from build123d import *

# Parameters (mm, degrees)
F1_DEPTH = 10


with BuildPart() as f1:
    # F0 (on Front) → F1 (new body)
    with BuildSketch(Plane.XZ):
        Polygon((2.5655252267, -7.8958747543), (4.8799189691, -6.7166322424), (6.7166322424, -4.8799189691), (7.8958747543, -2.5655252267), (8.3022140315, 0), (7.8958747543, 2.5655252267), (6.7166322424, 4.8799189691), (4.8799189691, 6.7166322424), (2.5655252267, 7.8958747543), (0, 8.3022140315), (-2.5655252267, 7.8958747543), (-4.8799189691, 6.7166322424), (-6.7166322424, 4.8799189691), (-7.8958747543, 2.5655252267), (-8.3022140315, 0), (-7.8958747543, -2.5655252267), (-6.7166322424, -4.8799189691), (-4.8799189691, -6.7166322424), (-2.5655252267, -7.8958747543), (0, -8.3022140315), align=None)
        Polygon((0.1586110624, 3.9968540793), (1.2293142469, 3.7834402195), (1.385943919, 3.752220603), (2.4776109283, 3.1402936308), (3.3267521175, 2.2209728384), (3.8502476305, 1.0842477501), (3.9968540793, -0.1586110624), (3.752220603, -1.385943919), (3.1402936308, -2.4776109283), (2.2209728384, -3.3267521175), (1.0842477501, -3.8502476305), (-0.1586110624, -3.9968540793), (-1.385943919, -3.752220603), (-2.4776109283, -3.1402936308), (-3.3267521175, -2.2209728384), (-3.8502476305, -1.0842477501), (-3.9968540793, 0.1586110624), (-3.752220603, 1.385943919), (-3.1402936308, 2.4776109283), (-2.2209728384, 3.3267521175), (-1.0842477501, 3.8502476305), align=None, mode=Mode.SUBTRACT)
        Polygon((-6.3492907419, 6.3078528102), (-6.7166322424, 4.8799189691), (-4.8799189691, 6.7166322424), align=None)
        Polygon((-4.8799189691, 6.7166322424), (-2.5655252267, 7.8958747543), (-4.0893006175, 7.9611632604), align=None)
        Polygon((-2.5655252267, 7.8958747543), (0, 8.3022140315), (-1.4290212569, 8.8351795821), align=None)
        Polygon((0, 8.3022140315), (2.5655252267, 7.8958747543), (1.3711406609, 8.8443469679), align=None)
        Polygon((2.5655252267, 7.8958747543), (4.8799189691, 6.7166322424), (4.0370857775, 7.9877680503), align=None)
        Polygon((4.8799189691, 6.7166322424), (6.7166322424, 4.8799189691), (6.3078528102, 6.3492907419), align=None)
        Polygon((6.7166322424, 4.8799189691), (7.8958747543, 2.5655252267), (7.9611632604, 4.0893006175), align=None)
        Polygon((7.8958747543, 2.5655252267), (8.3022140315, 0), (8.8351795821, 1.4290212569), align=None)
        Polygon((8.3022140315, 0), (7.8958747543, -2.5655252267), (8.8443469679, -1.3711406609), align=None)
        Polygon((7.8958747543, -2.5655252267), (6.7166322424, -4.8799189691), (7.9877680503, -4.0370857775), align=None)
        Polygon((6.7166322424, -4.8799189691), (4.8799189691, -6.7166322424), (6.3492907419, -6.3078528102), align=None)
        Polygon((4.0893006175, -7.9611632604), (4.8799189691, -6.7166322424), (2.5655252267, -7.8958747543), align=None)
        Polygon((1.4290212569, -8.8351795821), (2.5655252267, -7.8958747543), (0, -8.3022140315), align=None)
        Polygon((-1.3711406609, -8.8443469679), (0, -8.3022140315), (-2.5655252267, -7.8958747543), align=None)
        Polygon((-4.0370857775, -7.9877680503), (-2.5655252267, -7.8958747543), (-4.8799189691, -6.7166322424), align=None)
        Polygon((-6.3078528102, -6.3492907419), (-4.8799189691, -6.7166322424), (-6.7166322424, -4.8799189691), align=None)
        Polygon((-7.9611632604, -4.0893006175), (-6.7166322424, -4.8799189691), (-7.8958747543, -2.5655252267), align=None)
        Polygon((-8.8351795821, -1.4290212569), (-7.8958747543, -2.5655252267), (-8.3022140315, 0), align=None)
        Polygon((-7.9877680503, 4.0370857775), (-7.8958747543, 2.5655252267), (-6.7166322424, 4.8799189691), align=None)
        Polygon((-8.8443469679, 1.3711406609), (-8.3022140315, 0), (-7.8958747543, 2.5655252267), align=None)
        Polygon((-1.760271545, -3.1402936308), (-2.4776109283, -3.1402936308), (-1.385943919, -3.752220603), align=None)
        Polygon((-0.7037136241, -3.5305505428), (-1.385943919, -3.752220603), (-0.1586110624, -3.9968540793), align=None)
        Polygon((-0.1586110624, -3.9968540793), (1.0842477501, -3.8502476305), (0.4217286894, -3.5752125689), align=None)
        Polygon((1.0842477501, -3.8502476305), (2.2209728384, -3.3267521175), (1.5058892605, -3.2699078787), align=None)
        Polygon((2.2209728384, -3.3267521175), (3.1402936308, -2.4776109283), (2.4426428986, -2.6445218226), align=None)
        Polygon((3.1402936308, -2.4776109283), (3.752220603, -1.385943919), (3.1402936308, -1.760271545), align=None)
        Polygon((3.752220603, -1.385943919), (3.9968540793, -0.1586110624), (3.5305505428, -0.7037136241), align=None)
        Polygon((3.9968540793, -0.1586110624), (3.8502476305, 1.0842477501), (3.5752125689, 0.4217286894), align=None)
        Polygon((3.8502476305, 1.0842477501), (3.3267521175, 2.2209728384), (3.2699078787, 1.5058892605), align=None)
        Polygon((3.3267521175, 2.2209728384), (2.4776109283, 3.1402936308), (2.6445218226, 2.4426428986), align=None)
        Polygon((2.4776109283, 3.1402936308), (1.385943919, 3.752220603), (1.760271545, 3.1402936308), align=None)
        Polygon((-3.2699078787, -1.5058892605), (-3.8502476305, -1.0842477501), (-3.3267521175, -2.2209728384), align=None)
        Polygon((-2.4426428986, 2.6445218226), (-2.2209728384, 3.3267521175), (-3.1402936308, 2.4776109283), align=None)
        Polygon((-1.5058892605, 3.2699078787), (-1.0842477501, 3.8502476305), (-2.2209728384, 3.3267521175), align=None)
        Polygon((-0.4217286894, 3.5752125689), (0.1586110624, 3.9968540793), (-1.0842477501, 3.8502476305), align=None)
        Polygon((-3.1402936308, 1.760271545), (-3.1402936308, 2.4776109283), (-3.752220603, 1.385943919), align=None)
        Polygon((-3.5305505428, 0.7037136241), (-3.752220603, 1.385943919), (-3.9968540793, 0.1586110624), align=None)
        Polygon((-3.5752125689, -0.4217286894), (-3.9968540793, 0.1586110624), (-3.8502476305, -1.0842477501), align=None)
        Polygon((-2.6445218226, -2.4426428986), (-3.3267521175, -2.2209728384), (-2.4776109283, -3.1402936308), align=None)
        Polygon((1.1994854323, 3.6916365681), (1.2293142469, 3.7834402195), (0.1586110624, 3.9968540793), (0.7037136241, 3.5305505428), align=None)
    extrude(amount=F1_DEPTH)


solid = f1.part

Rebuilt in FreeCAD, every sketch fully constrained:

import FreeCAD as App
import Part
import Sketcher
Q = App.Units.Quantity


def add_polygon(sketch, points):
    """Adds a closed chain of lines whose ends are joined by coincident constraints."""
    first, n = sketch.GeometryCount, len(points)
    for a, b in zip(points, points[1:] + points[:1]):
        sketch.addGeometry(Part.LineSegment(App.Vector(*a, 0), App.Vector(*b, 0)), False)
    for i in range(n):
        sketch.addConstraint(Sketcher.Constraint("Coincident", first + i, 2, first + (i + 1) % n, 1))

doc = App.newDocument("Part")
body = doc.addObject("PartDesign::Body", "Body")

# Sketch on XZ plane
sketch1 = body.newObject("Sketcher::SketchObject", "Sketch")
sketch1.AttachmentSupport = (doc.getObject("XZ_Plane"), [""])
sketch1.MapMode = "FlatFace"
add_polygon(sketch1, [(4.879919, -6.716632), (6.349291, -6.307853), (6.716632, -4.879919), (7.987768, -4.037086), (7.895875, -2.565525), (8.844347, -1.371141), (8.302214, 0), (8.83518, 1.429021), (7.895875, 2.565525), (7.961163, 4.089301), (6.716632, 4.879919), (6.307853, 6.349291), (4.879919, 6.716632), (4.037086, 7.987768), (2.565525, 7.895875), (1.371141, 8.844347), (0, 8.302214), (-1.429021, 8.83518), (-2.565525, 7.895875), (-4.089301, 7.961163), (-4.879919, 6.716632), (-6.349291, 6.307853), (-6.716632, 4.879919), (-7.987768, 4.037086), (-7.895875, 2.565525), (-8.844347, 1.371141), (-8.302214, 0), (-8.83518, -1.429021), (-7.895875, -2.565525), (-7.961163, -4.089301), (-6.716632, -4.879919), (-6.307853, -6.349291), (-4.879919, -6.716632), (-4.037086, -7.987768), (-2.565525, -7.895875), (-1.371141, -8.844347), (0, -8.302214), (1.429021, -8.83518), (2.565525, -7.895875), (4.089301, -7.961163)])  # lines 0-39
add_polygon(sketch1, [(1.229314, 3.78344), (1.385944, 3.752221), (1.760272, 3.140294), (2.477611, 3.140294), (2.644522, 2.442643), (3.326752, 2.220973), (3.269908, 1.505889), (3.850248, 1.084248), (3.575213, 0.421729), (3.996854, -0.158611), (3.530551, -0.703714), (3.752221, -1.385944), (3.140294, -1.760272), (3.140294, -2.477611), (2.442643, -2.644522), (2.220973, -3.326752), (1.505889, -3.269908), (1.084248, -3.850248), (0.421729, -3.575213), (-0.158611, -3.996854), (-0.703714, -3.530551), (-1.385944, -3.752221), (-1.760272, -3.140294), (-2.477611, -3.140294), (-2.644522, -2.442643), (-3.326752, -2.220973), (-3.269908, -1.505889), (-3.850248, -1.084248), (-3.575213, -0.421729), (-3.996854, 0.158611), (-3.530551, 0.703714), (-3.752221, 1.385944), (-3.140294, 1.760272), (-3.140294, 2.477611), (-2.442643, 2.644522), (-2.220973, 3.326752), (-1.505889, 3.269908), (-1.084248, 3.850248), (-0.421729, 3.575213), (0.158611, 3.996854), (0.703714, 3.530551), (1.199485, 3.691637)])  # lines 40-81
sketch1.addConstraint([
    Sketcher.Constraint("Horizontal", 42),
    Sketcher.Constraint("Vertical", 52),
    Sketcher.Constraint("Horizontal", 62),
    Sketcher.Constraint("Vertical", 72),
    Sketcher.Constraint("Symmetric", 0, 2, 20, 2, -1, 1),
    Sketcher.Constraint("Symmetric", 1, 2, 21, 2, -1, 1),
    Sketcher.Constraint("Symmetric", 2, 2, 22, 2, -1, 1),
    Sketcher.Constraint("Symmetric", 3, 2, 23, 2, -1, 1),
    Sketcher.Constraint("Symmetric", 4, 2, 24, 2, -1, 1),
    Sketcher.Constraint("Symmetric", 5, 2, 25, 2, -1, 1),
    Sketcher.Constraint("Symmetric", 6, 2, 26, 2, -1, 1),
    Sketcher.Constraint("Symmetric", 7, 2, 27, 2, -1, 1),
    Sketcher.Constraint("Symmetric", 8, 2, 28, 2, -1, 1),
    Sketcher.Constraint("Symmetric", 9, 2, 29, 2, -1, 1),
    Sketcher.Constraint("Symmetric", 10, 2, 30, 2, -1, 1),
    Sketcher.Constraint("Symmetric", 11, 2, 31, 2, -1, 1),
    Sketcher.Constraint("Symmetric", 12, 2, 32, 2, -1, 1),
    Sketcher.Constraint("Symmetric", 13, 2, 33, 2, -1, 1),
    Sketcher.Constraint("Symmetric", 14, 2, 34, 2, -1, 1),
    Sketcher.Constraint("Symmetric", 15, 2, 35, 2, -1, 1),
    Sketcher.Constraint("Symmetric", 16, 2, 36, 2, -1, 1),
    Sketcher.Constraint("Symmetric", 17, 2, 37, 2, -1, 1),
    Sketcher.Constraint("Symmetric", 18, 2, 38, 2, -1, 1),
    Sketcher.Constraint("Symmetric", 19, 2, 39, 2, -1, 1),
    Sketcher.Constraint("Symmetric", 40, 2, 60, 2, -1, 1),
    Sketcher.Constraint("Symmetric", 41, 2, 61, 2, -1, 1),
    Sketcher.Constraint("Symmetric", 43, 2, 63, 2, -1, 1),
    Sketcher.Constraint("Symmetric", 44, 2, 64, 2, -1, 1),
    Sketcher.Constraint("Symmetric", 45, 2, 65, 2, -1, 1),
    Sketcher.Constraint("Symmetric", 46, 2, 66, 2, -1, 1),
    Sketcher.Constraint("Symmetric", 47, 2, 67, 2, -1, 1),
    Sketcher.Constraint("Symmetric", 48, 2, 68, 2, -1, 1),
    Sketcher.Constraint("Symmetric", 49, 2, 69, 2, -1, 1),
    Sketcher.Constraint("Symmetric", 50, 2, 70, 2, -1, 1),
    Sketcher.Constraint("Symmetric", 51, 2, 71, 2, -1, 1),
    Sketcher.Constraint("Symmetric", 53, 2, 73, 2, -1, 1),
    Sketcher.Constraint("Symmetric", 54, 2, 74, 2, -1, 1),
    Sketcher.Constraint("Symmetric", 55, 2, 75, 2, -1, 1),
    Sketcher.Constraint("Symmetric", 56, 2, 76, 2, -1, 1),
    Sketcher.Constraint("Symmetric", 57, 2, 77, 2, -1, 1),
    Sketcher.Constraint("Symmetric", 58, 2, 78, 2, -1, 1),
    Sketcher.Constraint("Symmetric", 59, 2, 79, 2, -1, 1),
    Sketcher.Constraint("Symmetric", 13, 2, 17, 2, -2),
    Sketcher.Constraint("Symmetric", 11, 2, 19, 2, -2),
    Sketcher.Constraint("Symmetric", 9, 2, 21, 2, -2),
    Sketcher.Constraint("Symmetric", 7, 2, 23, 2, -2),
    Sketcher.Constraint("PointOnObject", 5, 2, -1),
    Sketcher.Constraint("PointOnObject", 15, 2, -2),
    Sketcher.Constraint("Perpendicular", 0, 10),
    Sketcher.Constraint("Perpendicular", 1, 11),
    Sketcher.Constraint("Perpendicular", 2, 12),
    Sketcher.Constraint("Perpendicular", 3, 13),
    Sketcher.Constraint("Perpendicular", 4, 14),
    Sketcher.Constraint("Perpendicular", 5, 15),
    Sketcher.Constraint("Perpendicular", 6, 16),
    Sketcher.Constraint("Perpendicular", 7, 17),
    Sketcher.Constraint("Perpendicular", 8, 18),
    Sketcher.Constraint("Perpendicular", 9, 19),
    Sketcher.Constraint("Perpendicular", 41, 51),
    Sketcher.Constraint("Perpendicular", 43, 53),
    Sketcher.Constraint("Perpendicular", 44, 54),
    Sketcher.Constraint("Perpendicular", 45, 55),
    Sketcher.Constraint("Perpendicular", 46, 56),
    Sketcher.Constraint("Perpendicular", 47, 57),
    Sketcher.Constraint("Perpendicular", 48, 58),
    Sketcher.Constraint("Perpendicular", 49, 59),
    Sketcher.Constraint("Perpendicular", 50, 60),
    Sketcher.Constraint("Perpendicular", 53, 63),
    Sketcher.Constraint("Perpendicular", 63, 73),
    Sketcher.Constraint("Perpendicular", 70, 80),
    Sketcher.Constraint("Parallel", 74, 81),
    Sketcher.Constraint("Equal", 62, 52),
    Sketcher.Constraint("Equal", 0, 2),
    Sketcher.Constraint("Equal", 1, 3),
    Sketcher.Constraint("Equal", 2, 4),
    Sketcher.Constraint("Equal", 3, 5),
    Sketcher.Constraint("Equal", 4, 6),
    Sketcher.Constraint("Equal", 5, 7),
    Sketcher.Constraint("Equal", 6, 8),
    Sketcher.Constraint("Equal", 7, 9),
    Sketcher.Constraint("Equal", 8, 10),
    Sketcher.Constraint("Equal", 10, 12),
    Sketcher.Constraint("Equal", 11, 13),
    Sketcher.Constraint("Equal", 12, 14),
    Sketcher.Constraint("Equal", 13, 15),
    Sketcher.Constraint("Equal", 41, 43),
    Sketcher.Constraint("Equal", 43, 44),
    Sketcher.Constraint("Equal", 44, 45),
    Sketcher.Constraint("Equal", 45, 46),
    Sketcher.Constraint("Equal", 46, 47),
    Sketcher.Constraint("Equal", 47, 48),
    Sketcher.Constraint("Equal", 48, 49),
    Sketcher.Constraint("Equal", 49, 50),
    Sketcher.Constraint("Equal", 50, 51),
    Sketcher.Constraint("Equal", 51, 53),
    Sketcher.Constraint("Equal", 53, 54),
    Sketcher.Constraint("Equal", 54, 55),
    Sketcher.Constraint("Equal", 55, 56),
    Sketcher.Constraint("Equal", 56, 57),
    Sketcher.Constraint("Equal", 57, 58),
    Sketcher.Constraint("Equal", 58, 59),
    Sketcher.Constraint("Equal", 59, 60),
    Sketcher.Constraint("Angle", 44, Q("-18 deg")),
    Sketcher.Constraint("Angle", 46, Q("-36 deg")),
    Sketcher.Constraint("Angle", 48, Q("-54 deg")),
    Sketcher.Constraint("Angle", 50, Q("-72 deg")),
    Sketcher.Constraint("DistanceX", 42, 1, 42, 2, Q("0.717339 mm")),
    Sketcher.Constraint("DistanceY", -1, 1, 8, 2, Q("4.089301 mm")),
    Sketcher.Constraint("Distance", 40, Q("0.159711 mm")),
    Sketcher.Constraint("Distance", 41, Q("0.717339 mm")),
    Sketcher.Constraint("Distance", 81, Q("0.096528 mm")),
    Sketcher.Constraint("DistanceX", -1, 1, 0, 2, Q("6.349291 mm")),
    Sketcher.Constraint("DistanceY", 1, 2, -1, 1, Q("4.879919 mm")),
    Sketcher.Constraint("DistanceX", -1, 1, 2, 2, Q("7.987768 mm")),
    Sketcher.Constraint("DistanceY", 4, 2, -1, 1, Q("1.371141 mm")),
    Sketcher.Constraint("DistanceX", -1, 1, 6, 2, Q("8.83518 mm")),
    Sketcher.Constraint("DistanceY", -1, 1, 6, 2, Q("1.429021 mm")),
    Sketcher.Constraint("DistanceY", -1, 1, 40, 2, Q("3.752221 mm")),
    Sketcher.Constraint("DistanceX", -1, 1, 41, 2, Q("1.760272 mm")),
    Sketcher.Constraint("DistanceX", -1, 1, 43, 2, Q("2.644522 mm")),
    Sketcher.Constraint("DistanceY", -1, 1, 45, 2, Q("1.505889 mm")),
    Sketcher.Constraint("DistanceY", -1, 1, 47, 2, Q("0.421729 mm")),
])
pad1 = body.newObject("PartDesign::Pad", "Pad")
pad1.Profile = sketch1
pad1.Length = 10

doc.recompute()
